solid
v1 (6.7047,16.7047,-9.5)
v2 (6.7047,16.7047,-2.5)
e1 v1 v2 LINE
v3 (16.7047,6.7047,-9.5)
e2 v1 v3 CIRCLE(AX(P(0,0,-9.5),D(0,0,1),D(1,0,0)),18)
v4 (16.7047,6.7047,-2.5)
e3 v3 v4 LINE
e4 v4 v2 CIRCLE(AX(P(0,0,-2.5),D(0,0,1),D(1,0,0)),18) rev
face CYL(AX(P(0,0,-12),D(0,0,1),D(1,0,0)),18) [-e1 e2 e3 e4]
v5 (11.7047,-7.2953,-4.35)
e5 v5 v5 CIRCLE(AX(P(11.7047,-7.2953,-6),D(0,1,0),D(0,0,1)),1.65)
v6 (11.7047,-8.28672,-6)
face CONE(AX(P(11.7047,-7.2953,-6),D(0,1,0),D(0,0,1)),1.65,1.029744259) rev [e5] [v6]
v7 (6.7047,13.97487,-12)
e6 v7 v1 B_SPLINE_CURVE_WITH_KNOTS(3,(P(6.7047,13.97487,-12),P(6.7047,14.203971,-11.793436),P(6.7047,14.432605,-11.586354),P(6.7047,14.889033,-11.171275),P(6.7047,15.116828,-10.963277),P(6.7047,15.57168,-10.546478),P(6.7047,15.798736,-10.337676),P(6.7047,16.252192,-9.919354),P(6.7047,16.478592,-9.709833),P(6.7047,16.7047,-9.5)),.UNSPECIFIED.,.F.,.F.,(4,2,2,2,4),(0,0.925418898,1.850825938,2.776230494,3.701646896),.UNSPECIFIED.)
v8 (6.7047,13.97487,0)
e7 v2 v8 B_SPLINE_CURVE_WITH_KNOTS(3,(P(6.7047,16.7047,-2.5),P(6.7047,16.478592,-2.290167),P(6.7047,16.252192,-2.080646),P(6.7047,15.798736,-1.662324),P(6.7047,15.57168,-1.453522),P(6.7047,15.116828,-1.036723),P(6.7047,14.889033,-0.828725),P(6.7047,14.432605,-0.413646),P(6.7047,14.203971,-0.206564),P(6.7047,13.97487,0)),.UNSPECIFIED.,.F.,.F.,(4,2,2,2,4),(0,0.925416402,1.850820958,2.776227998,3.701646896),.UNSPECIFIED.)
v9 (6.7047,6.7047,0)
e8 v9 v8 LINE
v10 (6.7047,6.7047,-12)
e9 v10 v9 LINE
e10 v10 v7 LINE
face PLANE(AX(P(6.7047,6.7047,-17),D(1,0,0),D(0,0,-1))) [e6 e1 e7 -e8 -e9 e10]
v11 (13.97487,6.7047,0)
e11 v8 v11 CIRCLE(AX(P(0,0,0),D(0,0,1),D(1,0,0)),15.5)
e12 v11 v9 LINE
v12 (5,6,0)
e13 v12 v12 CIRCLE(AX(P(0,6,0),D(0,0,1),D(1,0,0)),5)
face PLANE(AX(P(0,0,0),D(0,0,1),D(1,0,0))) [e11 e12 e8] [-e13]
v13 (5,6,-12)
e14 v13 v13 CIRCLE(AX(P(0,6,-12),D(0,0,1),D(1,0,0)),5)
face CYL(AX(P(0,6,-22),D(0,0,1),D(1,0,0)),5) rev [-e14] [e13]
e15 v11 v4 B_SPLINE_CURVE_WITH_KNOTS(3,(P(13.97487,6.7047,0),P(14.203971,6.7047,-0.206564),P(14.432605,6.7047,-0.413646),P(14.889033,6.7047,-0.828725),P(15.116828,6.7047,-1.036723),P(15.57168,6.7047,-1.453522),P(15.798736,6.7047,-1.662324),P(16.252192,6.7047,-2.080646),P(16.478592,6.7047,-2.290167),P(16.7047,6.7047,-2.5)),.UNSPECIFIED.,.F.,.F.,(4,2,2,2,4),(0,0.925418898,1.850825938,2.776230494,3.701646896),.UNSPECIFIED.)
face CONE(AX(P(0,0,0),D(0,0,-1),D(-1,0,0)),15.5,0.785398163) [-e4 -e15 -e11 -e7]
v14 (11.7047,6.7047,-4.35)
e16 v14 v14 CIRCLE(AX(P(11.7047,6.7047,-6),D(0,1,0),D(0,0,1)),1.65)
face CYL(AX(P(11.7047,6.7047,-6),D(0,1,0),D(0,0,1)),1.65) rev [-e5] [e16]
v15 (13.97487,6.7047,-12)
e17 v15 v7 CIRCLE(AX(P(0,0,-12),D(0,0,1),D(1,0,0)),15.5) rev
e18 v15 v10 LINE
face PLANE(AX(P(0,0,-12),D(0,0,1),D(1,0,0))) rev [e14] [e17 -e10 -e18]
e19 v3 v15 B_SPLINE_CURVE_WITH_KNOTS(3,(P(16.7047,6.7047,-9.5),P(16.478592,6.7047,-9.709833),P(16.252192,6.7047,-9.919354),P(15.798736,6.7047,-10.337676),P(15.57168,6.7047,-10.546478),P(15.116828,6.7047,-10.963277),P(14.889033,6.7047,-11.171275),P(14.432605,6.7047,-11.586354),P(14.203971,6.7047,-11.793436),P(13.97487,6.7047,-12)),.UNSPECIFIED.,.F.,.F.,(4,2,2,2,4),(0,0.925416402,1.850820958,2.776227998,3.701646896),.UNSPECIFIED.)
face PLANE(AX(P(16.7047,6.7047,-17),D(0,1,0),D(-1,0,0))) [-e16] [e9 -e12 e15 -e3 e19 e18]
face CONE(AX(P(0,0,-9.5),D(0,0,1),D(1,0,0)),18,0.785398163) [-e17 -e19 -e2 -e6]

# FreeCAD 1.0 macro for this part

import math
import FreeCAD as App
import Part
import Sketcher
Q = App.Units.Quantity


def edges_at(feature, points):
    """Names of the edges that pass closest to the given points."""
    edges = feature.Shape.Edges
    near = lambda p: min(range(len(edges)), key=lambda i: edges[i].distToShape(Part.Vertex(*p))[0])
    return sorted({f"Edge{near(p) + 1}" for p in points})

doc = App.newDocument("Part")
body = doc.addObject("PartDesign::Body", "Body")

# Sketch on XY plane
sketch1 = doc.addObject("Sketcher::SketchObject", "Sketch")
body.addObject(sketch1)
sketch1.AttachmentSupport = (doc.XY_Plane, [""])
sketch1.MapMode = "FlatFace"
sketch1.addGeometry(Part.Circle(App.Vector(0, 0, 0), App.Vector(0, 0, 1), 18), False)
sketch1.addConstraint([
    Sketcher.Constraint("Coincident", 0, 3, -1, 1),
    Sketcher.Constraint("Diameter", 0, Q("36 mm")),
])
pad1 = doc.addObject("PartDesign::Pad", "Pad")
body.addObject(pad1)
pad1.Profile = sketch1
pad1.Length = 12
pad1.Reversed = True

# Sketch on XY plane
sketch2 = doc.addObject("Sketcher::SketchObject", "Sketch001")
body.addObject(sketch2)
sketch2.AttachmentSupport = (doc.XY_Plane, [""])
sketch2.MapMode = "FlatFace"
sketch2.addGeometry([
    Part.LineSegment(App.Vector(7, 7, 0), App.Vector(17, 7, 0)),
    Part.ArcOfCircle(Part.Circle(App.Vector(0, 0, 0), App.Vector(0, 0, 1), 18), math.radians(22), math.radians(68)),
    Part.LineSegment(App.Vector(7, 17, 0), App.Vector(7, 7, 0)),
], False)
sketch2.addConstraint([
    Sketcher.Constraint("Coincident", 0, 2, 1, 1),
    Sketcher.Constraint("Coincident", 1, 2, 2, 1),
    Sketcher.Constraint("Coincident", 2, 2, 0, 1),
    Sketcher.Constraint("Horizontal", 0),
    Sketcher.Constraint("Vertical", 2),
    Sketcher.Constraint("Coincident", 1, 3, -1, 1),
    Sketcher.Constraint("Equal", 0, 2),
    Sketcher.Constraint("Radius", 1, Q("18 mm")),
    Sketcher.Constraint("DistanceX", 0, 1, 0, 2, Q("10 mm")),
])
pocket1 = doc.addObject("PartDesign::Pocket", "Pocket")
body.addObject(pocket1)
pocket1.Profile = sketch2
pocket1.Length = 17

# Sketch on XY plane
sketch3 = doc.addObject("Sketcher::SketchObject", "Sketch002")
body.addObject(sketch3)
sketch3.AttachmentSupport = (doc.XY_Plane, [""])
sketch3.MapMode = "FlatFace"
sketch3.addGeometry(Part.Circle(App.Vector(0, 6, 0), App.Vector(0, 0, 1), 5), False)
sketch3.addConstraint([
    Sketcher.Constraint("PointOnObject", 0, 3, -2),
    Sketcher.Constraint("Diameter", 0, Q("10 mm")),
    Sketcher.Constraint("DistanceY", -1, 1, 0, 3, Q("6 mm")),
])
pocket2 = doc.addObject("PartDesign::Pocket", "Pocket001")
body.addObject(pocket2)
pocket2.Profile = sketch3
pocket2.Length = 22

# Sketch on XZ plane
sketch4 = doc.addObject("Sketcher::SketchObject", "Sketch003")
body.addObject(sketch4)
sketch4.AttachmentSupport = (doc.XZ_Plane, [""])
sketch4.MapMode = "FlatFace"
sketch4.AttachmentOffset = App.Placement(App.Vector(0, 0, -6.7047), App.Rotation())
sketch4.addGeometry(Part.Circle(App.Vector(11.7, -6, 0), App.Vector(0, 0, 1), 1.6), False)
sketch4.addConstraint([
    Sketcher.Constraint("Diameter", 0, Q("3.3 mm")),
    Sketcher.Constraint("DistanceY", 0, 3, -1, 1, Q("6 mm")),
    Sketcher.Constraint("DistanceX", -1, 1, 0, 3, Q("11.7047 mm")),
])
doc.recompute()
hole = doc.addObject("PartDesign::Hole", "Hole")
body.addObject(hole)
hole.Profile = sketch4
hole.ThreadType = "None"
hole.Diameter = 3.3
hole.DepthType = "Dimension"
hole.Depth = 14
hole.DrillPoint = "Angled"
hole.DrillPointAngle = 118
hole.Reversed = True
doc.recompute()

chamfer = doc.addObject("PartDesign::Chamfer", "Chamfer")
body.addObject(chamfer)
chamfer.Base = (hole, edges_at(hole, [(-12.728, -12.728, 0)]))
chamfer.Size = 2.5
doc.recompute()

chamfer2 = doc.addObject("PartDesign::Chamfer", "Chamfer001")
body.addObject(chamfer2)
chamfer2.Base = (chamfer, edges_at(chamfer, [(-12.728, -12.728, -12)]))
chamfer2.Size = 2.5

doc.recompute()
